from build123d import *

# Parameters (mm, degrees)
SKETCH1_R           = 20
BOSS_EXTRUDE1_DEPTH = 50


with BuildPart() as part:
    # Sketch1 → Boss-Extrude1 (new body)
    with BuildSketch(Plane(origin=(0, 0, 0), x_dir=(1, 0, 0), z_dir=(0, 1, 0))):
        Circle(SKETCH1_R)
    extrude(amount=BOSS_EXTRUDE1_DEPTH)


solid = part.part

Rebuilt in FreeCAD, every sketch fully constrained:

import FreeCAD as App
import Part
import Sketcher
from FreeCAD import Vector

doc = App.newDocument("Part")
body = doc.addObject("PartDesign::Body", "Body")

# Sketch on XZ plane
sketch1 = body.newObject("Sketcher::SketchObject", "Sketch")
sketch1.AttachmentSupport = (doc.getObject("XZ_Plane"), [""])
sketch1.MapMode = "FlatFace"
sketch1.addGeometry(Part.Circle(Vector(0, 0, 0), Vector(0, 0, 1), 20), False)
sketch1.addConstraint([
    Sketcher.Constraint("Coincident", 0, 3, -1, 1),
    Sketcher.Constraint("Diameter", 0, 40.0),
])
pad1 = body.newObject("PartDesign::Pad", "Pad")
pad1.Profile = sketch1
pad1.Length = 50
pad1.Reversed = True

doc.recompute()
